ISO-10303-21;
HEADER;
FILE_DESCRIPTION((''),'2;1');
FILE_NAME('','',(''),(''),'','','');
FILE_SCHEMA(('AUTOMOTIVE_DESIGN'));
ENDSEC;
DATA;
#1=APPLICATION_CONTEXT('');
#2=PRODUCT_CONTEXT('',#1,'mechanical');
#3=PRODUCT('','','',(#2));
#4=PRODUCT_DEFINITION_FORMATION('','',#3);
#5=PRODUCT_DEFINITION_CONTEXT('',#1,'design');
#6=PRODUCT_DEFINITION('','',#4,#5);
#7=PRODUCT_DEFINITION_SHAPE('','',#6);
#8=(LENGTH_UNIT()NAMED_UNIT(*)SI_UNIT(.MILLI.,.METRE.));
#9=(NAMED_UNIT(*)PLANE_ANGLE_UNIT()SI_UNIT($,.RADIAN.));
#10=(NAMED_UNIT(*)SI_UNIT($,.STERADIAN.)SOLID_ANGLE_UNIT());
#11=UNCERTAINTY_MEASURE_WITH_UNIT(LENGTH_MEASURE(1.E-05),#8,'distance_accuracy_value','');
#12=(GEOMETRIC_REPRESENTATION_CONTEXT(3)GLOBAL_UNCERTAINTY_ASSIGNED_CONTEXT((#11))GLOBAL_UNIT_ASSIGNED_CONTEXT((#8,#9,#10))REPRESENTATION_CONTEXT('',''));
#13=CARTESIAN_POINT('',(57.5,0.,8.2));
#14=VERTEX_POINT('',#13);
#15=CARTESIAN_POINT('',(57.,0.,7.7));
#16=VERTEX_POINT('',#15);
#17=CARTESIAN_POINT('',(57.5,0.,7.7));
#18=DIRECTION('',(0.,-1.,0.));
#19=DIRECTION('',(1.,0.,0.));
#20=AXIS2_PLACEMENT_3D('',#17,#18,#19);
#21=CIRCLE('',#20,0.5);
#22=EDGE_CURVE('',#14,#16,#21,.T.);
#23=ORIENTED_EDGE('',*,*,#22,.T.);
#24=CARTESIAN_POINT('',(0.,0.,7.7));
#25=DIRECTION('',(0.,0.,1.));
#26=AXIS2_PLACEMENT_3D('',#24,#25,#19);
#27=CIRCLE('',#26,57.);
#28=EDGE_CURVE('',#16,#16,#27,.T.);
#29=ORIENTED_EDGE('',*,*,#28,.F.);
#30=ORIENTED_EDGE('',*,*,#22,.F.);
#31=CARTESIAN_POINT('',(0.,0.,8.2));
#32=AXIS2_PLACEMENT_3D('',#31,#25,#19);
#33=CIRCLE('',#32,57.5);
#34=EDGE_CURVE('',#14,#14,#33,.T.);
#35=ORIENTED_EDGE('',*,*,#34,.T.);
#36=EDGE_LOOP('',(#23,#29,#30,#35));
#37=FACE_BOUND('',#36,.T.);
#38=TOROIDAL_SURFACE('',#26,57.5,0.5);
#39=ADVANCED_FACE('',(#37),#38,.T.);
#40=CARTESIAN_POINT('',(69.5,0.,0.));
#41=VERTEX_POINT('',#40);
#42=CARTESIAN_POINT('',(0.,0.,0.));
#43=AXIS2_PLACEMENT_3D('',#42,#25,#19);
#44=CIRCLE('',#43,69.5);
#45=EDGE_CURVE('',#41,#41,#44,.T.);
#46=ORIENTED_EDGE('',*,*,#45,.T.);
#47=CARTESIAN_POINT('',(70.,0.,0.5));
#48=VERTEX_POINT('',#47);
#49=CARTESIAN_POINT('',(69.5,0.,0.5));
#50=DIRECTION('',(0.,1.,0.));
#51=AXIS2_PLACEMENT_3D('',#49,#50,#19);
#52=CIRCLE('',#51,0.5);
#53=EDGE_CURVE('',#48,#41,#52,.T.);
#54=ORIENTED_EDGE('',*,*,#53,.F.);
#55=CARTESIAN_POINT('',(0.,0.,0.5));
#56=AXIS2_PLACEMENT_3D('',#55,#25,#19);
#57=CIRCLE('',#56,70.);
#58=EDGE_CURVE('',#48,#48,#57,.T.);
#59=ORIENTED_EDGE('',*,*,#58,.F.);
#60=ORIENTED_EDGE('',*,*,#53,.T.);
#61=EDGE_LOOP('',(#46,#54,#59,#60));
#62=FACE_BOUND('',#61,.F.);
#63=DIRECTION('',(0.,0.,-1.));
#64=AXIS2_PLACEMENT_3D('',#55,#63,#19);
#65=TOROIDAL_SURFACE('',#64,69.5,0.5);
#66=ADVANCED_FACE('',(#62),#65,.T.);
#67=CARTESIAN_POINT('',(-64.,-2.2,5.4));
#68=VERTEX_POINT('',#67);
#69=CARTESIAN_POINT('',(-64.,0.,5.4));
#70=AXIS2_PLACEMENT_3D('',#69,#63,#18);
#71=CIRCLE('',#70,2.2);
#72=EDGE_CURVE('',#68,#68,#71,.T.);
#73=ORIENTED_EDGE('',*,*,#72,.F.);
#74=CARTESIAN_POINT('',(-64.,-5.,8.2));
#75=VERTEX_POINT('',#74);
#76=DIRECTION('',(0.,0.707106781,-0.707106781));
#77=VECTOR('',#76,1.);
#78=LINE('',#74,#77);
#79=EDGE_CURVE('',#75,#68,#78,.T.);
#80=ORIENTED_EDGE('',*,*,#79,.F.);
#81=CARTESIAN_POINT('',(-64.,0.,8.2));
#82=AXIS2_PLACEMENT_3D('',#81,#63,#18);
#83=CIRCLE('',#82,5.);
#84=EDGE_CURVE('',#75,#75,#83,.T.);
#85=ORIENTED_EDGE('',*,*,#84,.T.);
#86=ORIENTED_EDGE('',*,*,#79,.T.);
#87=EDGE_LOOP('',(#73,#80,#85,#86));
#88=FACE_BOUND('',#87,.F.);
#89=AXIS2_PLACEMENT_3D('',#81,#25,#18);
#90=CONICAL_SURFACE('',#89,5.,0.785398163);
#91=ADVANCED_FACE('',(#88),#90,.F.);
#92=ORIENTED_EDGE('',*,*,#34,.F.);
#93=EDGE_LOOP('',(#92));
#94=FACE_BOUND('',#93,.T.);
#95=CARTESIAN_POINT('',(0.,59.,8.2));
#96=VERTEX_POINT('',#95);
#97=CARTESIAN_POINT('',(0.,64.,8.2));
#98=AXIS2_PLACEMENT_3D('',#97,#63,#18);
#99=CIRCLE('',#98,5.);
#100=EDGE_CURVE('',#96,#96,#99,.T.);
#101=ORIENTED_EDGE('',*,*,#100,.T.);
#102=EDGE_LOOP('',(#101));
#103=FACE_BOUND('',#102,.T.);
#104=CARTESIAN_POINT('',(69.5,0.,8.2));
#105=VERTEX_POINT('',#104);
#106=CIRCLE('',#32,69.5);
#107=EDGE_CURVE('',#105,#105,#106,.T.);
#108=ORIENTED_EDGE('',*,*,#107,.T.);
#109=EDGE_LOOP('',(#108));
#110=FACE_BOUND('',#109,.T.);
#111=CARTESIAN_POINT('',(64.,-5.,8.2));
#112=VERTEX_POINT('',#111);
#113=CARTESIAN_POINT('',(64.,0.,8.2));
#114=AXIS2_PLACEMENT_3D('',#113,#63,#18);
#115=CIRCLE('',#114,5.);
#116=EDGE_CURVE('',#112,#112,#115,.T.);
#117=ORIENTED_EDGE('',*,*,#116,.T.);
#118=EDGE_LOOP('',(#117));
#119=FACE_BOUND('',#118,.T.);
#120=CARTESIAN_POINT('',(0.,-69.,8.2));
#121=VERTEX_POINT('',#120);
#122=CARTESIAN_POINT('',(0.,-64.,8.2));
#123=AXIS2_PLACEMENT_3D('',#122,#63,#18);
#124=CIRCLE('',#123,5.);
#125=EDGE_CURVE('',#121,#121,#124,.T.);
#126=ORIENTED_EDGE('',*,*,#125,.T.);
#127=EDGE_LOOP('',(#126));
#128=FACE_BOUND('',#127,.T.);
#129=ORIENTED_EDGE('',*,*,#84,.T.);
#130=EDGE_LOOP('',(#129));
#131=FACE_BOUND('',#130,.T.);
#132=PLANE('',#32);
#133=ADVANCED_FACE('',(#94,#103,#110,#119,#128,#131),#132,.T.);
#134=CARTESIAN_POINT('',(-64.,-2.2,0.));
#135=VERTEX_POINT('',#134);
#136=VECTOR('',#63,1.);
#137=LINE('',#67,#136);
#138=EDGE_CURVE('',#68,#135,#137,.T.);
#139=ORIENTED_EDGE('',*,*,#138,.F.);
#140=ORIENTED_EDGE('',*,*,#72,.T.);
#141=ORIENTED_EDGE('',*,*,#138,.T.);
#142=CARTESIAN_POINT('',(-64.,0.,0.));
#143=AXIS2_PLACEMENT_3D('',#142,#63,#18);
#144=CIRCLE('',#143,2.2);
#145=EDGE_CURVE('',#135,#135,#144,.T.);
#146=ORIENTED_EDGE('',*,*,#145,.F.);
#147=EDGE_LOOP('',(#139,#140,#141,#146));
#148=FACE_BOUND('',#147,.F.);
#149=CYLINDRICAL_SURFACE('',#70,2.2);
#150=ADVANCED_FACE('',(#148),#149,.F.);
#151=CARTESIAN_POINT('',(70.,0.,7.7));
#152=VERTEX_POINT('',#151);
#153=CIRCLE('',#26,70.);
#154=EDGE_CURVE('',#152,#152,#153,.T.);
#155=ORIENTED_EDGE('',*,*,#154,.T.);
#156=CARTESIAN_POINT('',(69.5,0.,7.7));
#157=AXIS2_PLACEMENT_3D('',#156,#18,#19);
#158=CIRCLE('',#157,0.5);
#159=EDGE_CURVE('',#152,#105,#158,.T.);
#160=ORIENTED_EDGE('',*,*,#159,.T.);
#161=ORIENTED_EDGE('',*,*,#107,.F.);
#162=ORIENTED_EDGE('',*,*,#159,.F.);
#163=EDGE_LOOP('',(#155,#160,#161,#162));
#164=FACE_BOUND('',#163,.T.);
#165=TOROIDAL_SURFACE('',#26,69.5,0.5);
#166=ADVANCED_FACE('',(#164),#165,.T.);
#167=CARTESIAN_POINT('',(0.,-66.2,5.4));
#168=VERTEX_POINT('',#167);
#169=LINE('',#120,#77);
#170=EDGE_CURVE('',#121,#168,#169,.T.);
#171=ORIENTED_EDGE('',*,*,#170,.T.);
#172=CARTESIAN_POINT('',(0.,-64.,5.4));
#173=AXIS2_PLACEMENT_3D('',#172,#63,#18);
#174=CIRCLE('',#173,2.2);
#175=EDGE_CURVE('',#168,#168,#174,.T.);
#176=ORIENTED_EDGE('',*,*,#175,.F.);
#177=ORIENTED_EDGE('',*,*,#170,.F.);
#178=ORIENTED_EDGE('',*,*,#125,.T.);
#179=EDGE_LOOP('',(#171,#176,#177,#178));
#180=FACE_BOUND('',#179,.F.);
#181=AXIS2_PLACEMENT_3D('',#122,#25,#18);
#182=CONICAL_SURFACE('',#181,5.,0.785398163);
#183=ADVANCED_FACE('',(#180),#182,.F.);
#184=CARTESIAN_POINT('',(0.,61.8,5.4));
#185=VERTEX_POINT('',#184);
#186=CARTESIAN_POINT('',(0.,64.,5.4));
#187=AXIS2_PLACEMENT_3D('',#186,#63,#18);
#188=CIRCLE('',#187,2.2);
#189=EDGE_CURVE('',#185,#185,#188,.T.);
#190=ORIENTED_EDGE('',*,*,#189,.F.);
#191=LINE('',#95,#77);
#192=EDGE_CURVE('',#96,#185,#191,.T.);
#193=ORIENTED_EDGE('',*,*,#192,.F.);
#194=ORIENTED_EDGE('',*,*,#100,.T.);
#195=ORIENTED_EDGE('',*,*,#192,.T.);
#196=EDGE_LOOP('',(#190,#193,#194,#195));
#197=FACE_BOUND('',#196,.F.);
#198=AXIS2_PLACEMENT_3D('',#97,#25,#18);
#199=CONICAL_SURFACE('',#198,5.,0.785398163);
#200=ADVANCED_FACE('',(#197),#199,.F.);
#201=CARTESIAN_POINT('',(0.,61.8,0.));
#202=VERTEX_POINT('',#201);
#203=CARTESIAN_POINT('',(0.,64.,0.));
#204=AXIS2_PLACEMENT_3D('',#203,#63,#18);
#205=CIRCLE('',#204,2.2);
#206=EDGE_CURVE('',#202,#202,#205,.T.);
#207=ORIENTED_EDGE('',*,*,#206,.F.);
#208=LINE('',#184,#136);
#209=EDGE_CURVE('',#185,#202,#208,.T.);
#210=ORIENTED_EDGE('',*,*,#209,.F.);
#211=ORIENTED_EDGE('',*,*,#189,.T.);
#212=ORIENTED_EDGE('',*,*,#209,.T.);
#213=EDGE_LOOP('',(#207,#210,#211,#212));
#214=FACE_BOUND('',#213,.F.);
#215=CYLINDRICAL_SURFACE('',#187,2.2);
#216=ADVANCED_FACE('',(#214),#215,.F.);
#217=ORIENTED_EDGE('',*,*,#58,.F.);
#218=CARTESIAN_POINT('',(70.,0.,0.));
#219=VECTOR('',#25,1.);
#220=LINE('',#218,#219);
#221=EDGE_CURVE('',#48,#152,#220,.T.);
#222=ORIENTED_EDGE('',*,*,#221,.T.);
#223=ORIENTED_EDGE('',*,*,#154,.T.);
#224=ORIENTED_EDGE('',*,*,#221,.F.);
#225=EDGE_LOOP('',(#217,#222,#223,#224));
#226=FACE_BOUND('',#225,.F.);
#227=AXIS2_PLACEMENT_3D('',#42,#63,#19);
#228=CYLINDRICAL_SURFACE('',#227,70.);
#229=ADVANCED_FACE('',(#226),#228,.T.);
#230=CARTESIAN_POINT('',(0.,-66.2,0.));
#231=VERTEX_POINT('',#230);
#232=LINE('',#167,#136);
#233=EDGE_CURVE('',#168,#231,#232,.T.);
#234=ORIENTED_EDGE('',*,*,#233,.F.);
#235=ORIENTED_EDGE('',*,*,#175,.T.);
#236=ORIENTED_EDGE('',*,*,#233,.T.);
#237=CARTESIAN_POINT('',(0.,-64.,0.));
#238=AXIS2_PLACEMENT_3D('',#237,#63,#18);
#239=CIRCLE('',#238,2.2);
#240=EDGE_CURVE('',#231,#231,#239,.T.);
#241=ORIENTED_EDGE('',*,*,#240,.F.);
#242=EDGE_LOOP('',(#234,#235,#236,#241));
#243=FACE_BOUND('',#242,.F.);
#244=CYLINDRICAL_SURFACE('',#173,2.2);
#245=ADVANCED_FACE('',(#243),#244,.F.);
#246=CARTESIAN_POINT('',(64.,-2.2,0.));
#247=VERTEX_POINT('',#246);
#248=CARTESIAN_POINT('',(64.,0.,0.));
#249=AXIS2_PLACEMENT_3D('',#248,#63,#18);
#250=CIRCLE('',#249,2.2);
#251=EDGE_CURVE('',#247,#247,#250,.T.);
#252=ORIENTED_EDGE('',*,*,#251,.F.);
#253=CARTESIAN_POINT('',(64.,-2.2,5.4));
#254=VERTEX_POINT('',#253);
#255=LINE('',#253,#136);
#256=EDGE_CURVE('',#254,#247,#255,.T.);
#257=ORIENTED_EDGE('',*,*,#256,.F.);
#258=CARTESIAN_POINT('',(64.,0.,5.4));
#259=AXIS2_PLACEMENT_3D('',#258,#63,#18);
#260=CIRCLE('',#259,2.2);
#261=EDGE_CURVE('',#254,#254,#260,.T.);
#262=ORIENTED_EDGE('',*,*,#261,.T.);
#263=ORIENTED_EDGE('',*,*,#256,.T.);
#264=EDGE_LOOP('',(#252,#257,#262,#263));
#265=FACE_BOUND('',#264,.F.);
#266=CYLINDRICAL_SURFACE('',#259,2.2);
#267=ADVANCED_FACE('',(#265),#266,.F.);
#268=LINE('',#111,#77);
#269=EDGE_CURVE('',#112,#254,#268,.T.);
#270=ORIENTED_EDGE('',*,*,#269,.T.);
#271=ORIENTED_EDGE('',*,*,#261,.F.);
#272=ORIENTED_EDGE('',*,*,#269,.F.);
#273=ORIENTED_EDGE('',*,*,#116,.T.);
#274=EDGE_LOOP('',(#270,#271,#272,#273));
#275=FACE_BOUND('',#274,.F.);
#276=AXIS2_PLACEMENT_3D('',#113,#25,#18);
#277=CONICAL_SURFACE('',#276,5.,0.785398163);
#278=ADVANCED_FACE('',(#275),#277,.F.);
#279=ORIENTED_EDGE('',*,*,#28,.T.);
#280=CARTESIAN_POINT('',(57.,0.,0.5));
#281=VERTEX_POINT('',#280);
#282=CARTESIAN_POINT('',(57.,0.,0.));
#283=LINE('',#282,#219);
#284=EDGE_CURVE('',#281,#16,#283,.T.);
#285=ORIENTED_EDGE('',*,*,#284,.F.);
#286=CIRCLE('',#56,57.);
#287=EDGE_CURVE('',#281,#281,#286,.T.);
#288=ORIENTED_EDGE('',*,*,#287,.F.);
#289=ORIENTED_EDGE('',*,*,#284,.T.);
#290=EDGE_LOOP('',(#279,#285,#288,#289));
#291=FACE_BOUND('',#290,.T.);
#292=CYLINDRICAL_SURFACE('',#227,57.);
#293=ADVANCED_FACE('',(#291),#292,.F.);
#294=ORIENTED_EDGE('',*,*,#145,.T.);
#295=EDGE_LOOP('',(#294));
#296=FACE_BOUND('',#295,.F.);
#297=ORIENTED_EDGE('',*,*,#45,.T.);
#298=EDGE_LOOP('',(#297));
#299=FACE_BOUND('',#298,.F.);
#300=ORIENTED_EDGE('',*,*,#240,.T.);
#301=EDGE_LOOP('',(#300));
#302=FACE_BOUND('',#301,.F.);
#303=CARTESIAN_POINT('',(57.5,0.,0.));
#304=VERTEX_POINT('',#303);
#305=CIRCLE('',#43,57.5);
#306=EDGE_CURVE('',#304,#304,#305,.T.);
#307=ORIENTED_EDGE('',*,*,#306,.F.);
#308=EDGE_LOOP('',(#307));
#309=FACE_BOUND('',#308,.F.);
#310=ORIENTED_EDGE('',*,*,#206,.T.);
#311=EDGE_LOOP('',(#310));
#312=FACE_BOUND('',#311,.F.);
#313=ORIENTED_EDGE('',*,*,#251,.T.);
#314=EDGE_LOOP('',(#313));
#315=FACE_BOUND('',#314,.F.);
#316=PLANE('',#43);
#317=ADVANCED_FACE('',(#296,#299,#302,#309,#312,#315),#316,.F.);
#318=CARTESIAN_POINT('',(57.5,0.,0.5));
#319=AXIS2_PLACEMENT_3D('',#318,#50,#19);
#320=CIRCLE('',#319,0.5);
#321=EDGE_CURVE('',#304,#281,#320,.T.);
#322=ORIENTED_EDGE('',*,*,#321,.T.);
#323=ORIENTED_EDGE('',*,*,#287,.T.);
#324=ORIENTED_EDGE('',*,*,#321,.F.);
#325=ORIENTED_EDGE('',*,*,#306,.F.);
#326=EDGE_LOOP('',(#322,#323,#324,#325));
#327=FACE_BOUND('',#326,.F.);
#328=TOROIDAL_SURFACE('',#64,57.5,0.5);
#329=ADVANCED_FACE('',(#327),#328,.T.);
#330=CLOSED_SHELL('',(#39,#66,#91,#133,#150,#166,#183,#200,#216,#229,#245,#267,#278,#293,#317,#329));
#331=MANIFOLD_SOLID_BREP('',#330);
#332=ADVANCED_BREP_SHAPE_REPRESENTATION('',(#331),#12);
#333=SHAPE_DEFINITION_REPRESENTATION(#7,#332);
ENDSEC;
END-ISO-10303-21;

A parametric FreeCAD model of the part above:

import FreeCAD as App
import Part
import Sketcher

V = App.Vector
Q = App.Units.Quantity


def edges_at(feature, points):
    """Names of the edges that pass closest to the given points."""
    edges = feature.Shape.Edges
    near = lambda p: min(range(len(edges)), key=lambda i: edges[i].distToShape(Part.Vertex(*p))[0])
    return sorted({f"Edge{near(p) + 1}" for p in points})

doc = App.newDocument("Part")
body = doc.addObject("PartDesign::Body", "Body")

sketch1 = body.newObject("Sketcher::SketchObject", "Sketch")
sketch1.AttachmentSupport = (doc.getObject("XY_Plane"), [""])
sketch1.MapMode = "FlatFace"
sketch1.addGeometry([
    Part.Circle(V(0, 0, 0), V(0, 0, 1), 70),
    Part.Circle(V(0, 0, 0), V(0, 0, 1), 57),
], False)
sketch1.addConstraint([
    Sketcher.Constraint("Coincident", 0, 3, -1, 1),
    Sketcher.Constraint("Coincident", 1, 3, -1, 1),
    Sketcher.Constraint("Diameter", 0, Q("140 mm")),
    Sketcher.Constraint("Diameter", 1, Q("114 mm")),
])
pad1 = body.newObject("PartDesign::Pad", "Pad")
pad1.Profile = sketch1
pad1.Length = 8.2

sketch2 = body.newObject("Sketcher::SketchObject", "Sketch001")
sketch2.AttachmentSupport = (doc.getObject("XY_Plane"), [""])
sketch2.MapMode = "FlatFace"
sketch2.AttachmentOffset = App.Placement(V(0, 0, 8.2), App.Rotation())
sketch2.addGeometry([
    Part.Circle(V(-64, 0, 0), V(0, 0, 1), 2.2),
    Part.Circle(V(0, -64, 0), V(0, 0, 1), 2.2),
    Part.Circle(V(64, 0, 0), V(0, 0, 1), 2.2),
    Part.Circle(V(0, 64, 0), V(0, 0, 1), 2.2),
], False)
sketch2.addConstraint([
    Sketcher.Constraint("Equal", 0, 1),
    Sketcher.Constraint("Equal", 1, 2),
    Sketcher.Constraint("Equal", 2, 3),
    Sketcher.Constraint("Symmetric", 0, 3, 2, 3, -1, 1),
    Sketcher.Constraint("Symmetric", 1, 3, 3, 3, -1, 1),
    Sketcher.Constraint("PointOnObject", 0, 3, -1),
    Sketcher.Constraint("PointOnObject", 1, 3, -2),
    Sketcher.Constraint("Diameter", 0, Q("4.4 mm")),
    Sketcher.Constraint("DistanceX", 0, 3, -1, 1, Q("64 mm")),
    Sketcher.Constraint("DistanceY", 1, 3, -1, 1, Q("64 mm")),
])
doc.recompute()
hole = body.newObject("PartDesign::Hole", "Hole")
hole.Profile = sketch2
hole.ThreadType = "None"
hole.Diameter = 4.4
hole.DepthType = "ThroughAll"
hole.HoleCutType = "Countersink"
hole.HoleCutDiameter = 10
hole.HoleCutCountersinkAngle = 90
doc.recompute()

fillet = body.newObject("PartDesign::Fillet", "Fillet")
fillet.Base = (hole, edges_at(hole, [
    (-70, 0, 0),
    (-57, 0, 0),
    (-70, 0, 8.2),
    (-57, 0, 8.2),
]))
fillet.Radius = 0.5

doc.recompute()
